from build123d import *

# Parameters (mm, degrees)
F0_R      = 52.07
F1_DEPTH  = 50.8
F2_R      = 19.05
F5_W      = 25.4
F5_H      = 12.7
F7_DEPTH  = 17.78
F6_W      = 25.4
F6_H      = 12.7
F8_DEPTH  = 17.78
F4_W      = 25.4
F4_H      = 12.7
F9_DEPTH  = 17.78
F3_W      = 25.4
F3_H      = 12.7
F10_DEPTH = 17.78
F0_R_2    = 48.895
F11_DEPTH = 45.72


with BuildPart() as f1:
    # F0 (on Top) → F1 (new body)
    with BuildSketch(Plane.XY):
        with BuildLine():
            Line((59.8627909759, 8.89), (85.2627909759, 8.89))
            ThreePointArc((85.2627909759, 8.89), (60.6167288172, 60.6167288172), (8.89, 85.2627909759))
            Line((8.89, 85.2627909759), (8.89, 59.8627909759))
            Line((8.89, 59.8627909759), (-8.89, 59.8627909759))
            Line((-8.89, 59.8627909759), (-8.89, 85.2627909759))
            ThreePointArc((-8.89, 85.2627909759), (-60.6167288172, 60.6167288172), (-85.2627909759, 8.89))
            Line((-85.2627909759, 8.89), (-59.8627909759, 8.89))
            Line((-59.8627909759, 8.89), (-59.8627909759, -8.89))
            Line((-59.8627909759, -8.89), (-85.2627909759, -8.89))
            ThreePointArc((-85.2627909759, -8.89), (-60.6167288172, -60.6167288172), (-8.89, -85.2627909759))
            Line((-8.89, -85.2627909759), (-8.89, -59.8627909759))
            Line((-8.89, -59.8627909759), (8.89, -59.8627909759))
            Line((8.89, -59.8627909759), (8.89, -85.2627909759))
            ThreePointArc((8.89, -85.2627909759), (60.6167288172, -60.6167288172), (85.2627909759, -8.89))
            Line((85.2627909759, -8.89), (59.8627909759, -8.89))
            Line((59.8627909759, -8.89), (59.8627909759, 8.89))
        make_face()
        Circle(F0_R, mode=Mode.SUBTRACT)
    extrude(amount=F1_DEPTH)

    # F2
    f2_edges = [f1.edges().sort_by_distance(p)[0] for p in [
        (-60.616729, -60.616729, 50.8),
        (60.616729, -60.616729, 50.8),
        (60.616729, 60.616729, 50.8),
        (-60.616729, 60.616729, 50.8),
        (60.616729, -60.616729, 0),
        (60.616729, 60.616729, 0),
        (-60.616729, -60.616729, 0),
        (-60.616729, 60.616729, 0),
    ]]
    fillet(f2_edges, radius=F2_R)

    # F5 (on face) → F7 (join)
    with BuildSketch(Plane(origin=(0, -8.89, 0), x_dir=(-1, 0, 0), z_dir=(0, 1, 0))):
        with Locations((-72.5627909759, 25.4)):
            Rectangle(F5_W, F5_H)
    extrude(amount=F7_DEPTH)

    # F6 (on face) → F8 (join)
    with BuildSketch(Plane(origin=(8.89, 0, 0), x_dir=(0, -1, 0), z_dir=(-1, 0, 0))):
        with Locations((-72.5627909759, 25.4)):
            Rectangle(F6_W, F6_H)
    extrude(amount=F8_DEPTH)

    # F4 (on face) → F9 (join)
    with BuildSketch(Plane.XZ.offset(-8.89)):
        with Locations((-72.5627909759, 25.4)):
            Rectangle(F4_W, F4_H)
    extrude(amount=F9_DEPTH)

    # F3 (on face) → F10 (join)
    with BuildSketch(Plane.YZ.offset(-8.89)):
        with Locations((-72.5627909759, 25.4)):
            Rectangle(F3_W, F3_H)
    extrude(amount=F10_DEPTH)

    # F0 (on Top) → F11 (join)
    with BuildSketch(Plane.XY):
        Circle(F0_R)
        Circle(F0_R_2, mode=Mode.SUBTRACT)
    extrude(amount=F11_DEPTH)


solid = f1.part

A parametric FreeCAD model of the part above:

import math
import FreeCAD as App
import Part
import Sketcher
from FreeCAD import Vector
Q = App.Units.Quantity


def edges_at(feature, points):
    """Names of the edges that pass closest to the given points."""
    edges = feature.Shape.Edges
    near = lambda p: min(range(len(edges)), key=lambda i: edges[i].distToShape(Part.Vertex(*p))[0])
    return sorted({f"Edge{near(p) + 1}" for p in points})

doc = App.newDocument("Part")
body = doc.addObject("PartDesign::Body", "Body")

# Sketch on XY plane
sketch1 = body.newObject("Sketcher::SketchObject", "Sketch")
sketch1.AttachmentSupport = (doc.getObject("XY_Plane"), [""])
sketch1.MapMode = "FlatFace"
sketch1.addGeometry(Part.LineSegment(Vector(59.862791, 8.89, 0), Vector(85.262791, 8.89, 0)), False)
sketch1.addGeometry(Part.ArcOfCircle(Part.Circle(Vector(0, 0, 0), Vector(0, 0, 1), 85.725), math.radians(5.952487), math.radians(84.047513)), False)
sketch1.addGeometry(Part.LineSegment(Vector(8.89, 85.262791, 0), Vector(8.89, 59.862791, 0)), False)
sketch1.addGeometry(Part.LineSegment(Vector(8.89, 59.862791, 0), Vector(-8.89, 59.862791, 0)), False)
sketch1.addGeometry(Part.LineSegment(Vector(-8.89, 59.862791, 0), Vector(-8.89, 85.262791, 0)), False)
sketch1.addGeometry(Part.ArcOfCircle(Part.Circle(Vector(0, 0, 0), Vector(0, 0, 1), 85.725), math.radians(95.952487), math.radians(174.047513)), False)
sketch1.addGeometry(Part.LineSegment(Vector(-85.262791, 8.89, 0), Vector(-59.862791, 8.89, 0)), False)
sketch1.addGeometry(Part.LineSegment(Vector(-59.862791, 8.89, 0), Vector(-59.862791, -8.89, 0)), False)
sketch1.addGeometry(Part.LineSegment(Vector(-59.862791, -8.89, 0), Vector(-85.262791, -8.89, 0)), False)
sketch1.addGeometry(Part.ArcOfCircle(Part.Circle(Vector(0, 0, 0), Vector(0, 0, 1), 85.725), math.radians(-174.047513), math.radians(-95.952487)), False)
sketch1.addGeometry(Part.LineSegment(Vector(-8.89, -85.262791, 0), Vector(-8.89, -59.862791, 0)), False)
sketch1.addGeometry(Part.LineSegment(Vector(-8.89, -59.862791, 0), Vector(8.89, -59.862791, 0)), False)
sketch1.addGeometry(Part.LineSegment(Vector(8.89, -59.862791, 0), Vector(8.89, -85.262791, 0)), False)
sketch1.addGeometry(Part.ArcOfCircle(Part.Circle(Vector(0, 0, 0), Vector(0, 0, 1), 85.725), math.radians(-84.047513), math.radians(-5.952487)), False)
sketch1.addGeometry(Part.LineSegment(Vector(85.262791, -8.89, 0), Vector(59.862791, -8.89, 0)), False)
sketch1.addGeometry(Part.LineSegment(Vector(59.862791, -8.89, 0), Vector(59.862791, 8.89, 0)), False)
sketch1.addGeometry(Part.Circle(Vector(0, 0, 0), Vector(0, 0, 1), 52.07), False)
sketch1.addConstraint(Sketcher.Constraint("Coincident", 0, 2, 1, 1))
sketch1.addConstraint(Sketcher.Constraint("Coincident", 1, 2, 2, 1))
sketch1.addConstraint(Sketcher.Constraint("Coincident", 2, 2, 3, 1))
sketch1.addConstraint(Sketcher.Constraint("Coincident", 3, 2, 4, 1))
sketch1.addConstraint(Sketcher.Constraint("Coincident", 4, 2, 5, 1))
sketch1.addConstraint(Sketcher.Constraint("Coincident", 5, 2, 6, 1))
sketch1.addConstraint(Sketcher.Constraint("Coincident", 6, 2, 7, 1))
sketch1.addConstraint(Sketcher.Constraint("Coincident", 7, 2, 8, 1))
sketch1.addConstraint(Sketcher.Constraint("Coincident", 8, 2, 9, 1))
sketch1.addConstraint(Sketcher.Constraint("Coincident", 9, 2, 10, 1))
sketch1.addConstraint(Sketcher.Constraint("Coincident", 10, 2, 11, 1))
sketch1.addConstraint(Sketcher.Constraint("Coincident", 11, 2, 12, 1))
sketch1.addConstraint(Sketcher.Constraint("Coincident", 12, 2, 13, 1))
sketch1.addConstraint(Sketcher.Constraint("Coincident", 13, 2, 14, 1))
sketch1.addConstraint(Sketcher.Constraint("Coincident", 14, 2, 15, 1))
sketch1.addConstraint(Sketcher.Constraint("Coincident", 15, 2, 0, 1))
sketch1.addConstraint(Sketcher.Constraint("Horizontal", 0))
sketch1.addConstraint(Sketcher.Constraint("Vertical", 2))
sketch1.addConstraint(Sketcher.Constraint("Horizontal", 3))
sketch1.addConstraint(Sketcher.Constraint("Vertical", 4))
sketch1.addConstraint(Sketcher.Constraint("Horizontal", 6))
sketch1.addConstraint(Sketcher.Constraint("Vertical", 7))
sketch1.addConstraint(Sketcher.Constraint("Horizontal", 8))
sketch1.addConstraint(Sketcher.Constraint("Vertical", 10))
sketch1.addConstraint(Sketcher.Constraint("Horizontal", 11))
sketch1.addConstraint(Sketcher.Constraint("Vertical", 12))
sketch1.addConstraint(Sketcher.Constraint("Horizontal", 14))
sketch1.addConstraint(Sketcher.Constraint("Vertical", 15))
sketch1.addConstraint(Sketcher.Constraint("Coincident", 1, 3, -1, 1))
sketch1.addConstraint(Sketcher.Constraint("Coincident", 5, 3, -1, 1))
sketch1.addConstraint(Sketcher.Constraint("Coincident", 9, 3, -1, 1))
sketch1.addConstraint(Sketcher.Constraint("Coincident", 13, 3, -1, 1))
sketch1.addConstraint(Sketcher.Constraint("Coincident", 16, 3, -1, 1))
sketch1.addConstraint(Sketcher.Constraint("Equal", 1, 5))
sketch1.addConstraint(Sketcher.Constraint("Equal", 5, 9))
sketch1.addConstraint(Sketcher.Constraint("Equal", 9, 13))
sketch1.addConstraint(Sketcher.Constraint("Symmetric", 2, 2, 10, 2, -1, 1))
sketch1.addConstraint(Sketcher.Constraint("Symmetric", 6, 2, 14, 2, -1, 1))
sketch1.addConstraint(Sketcher.Constraint("Horizontal", 1, 2, 4, 2))
sketch1.addConstraint(Sketcher.Constraint("Horizontal", 0, 2, 5, 2))
sketch1.addConstraint(Sketcher.Constraint("Horizontal", 9, 2, 12, 2))
sketch1.addConstraint(Sketcher.Constraint("Horizontal", 8, 2, 13, 2))
sketch1.addConstraint(Sketcher.Constraint("Equal", 14, 2))
sketch1.addConstraint(Sketcher.Constraint("Equal", 11, 7))
sketch1.addConstraint(Sketcher.Constraint("Diameter", 16, Q("4.1 in")))
sketch1.addConstraint(Sketcher.Constraint("DistanceX", 0, 1, 0, 2, Q("1 in")))
sketch1.addConstraint(Sketcher.Constraint("DistanceX", 3, 2, 3, 1, Q("0.7 in")))
sketch1.addConstraint(Sketcher.Constraint("Radius", 1, Q("3.375 in")))
pad1 = body.newObject("PartDesign::Pad", "Pad")
pad1.Profile = sketch1
pad1.Length = Q("2 in")
doc.recompute()

fillet = body.newObject("PartDesign::Fillet", "Fillet")
fillet.Base = (pad1, edges_at(pad1, [
    (-60.617, -60.617, 50.8),
    (60.617, -60.617, 50.8),
    (60.617, 60.617, 50.8),
    (-60.617, 60.617, 50.8),
    (60.617, -60.617, 0),
    (60.617, 60.617, 0),
    (-60.617, -60.617, 0),
    (-60.617, 60.617, 0),
]))
fillet.Radius = Q("0.75 in")

# Sketch on XZ plane
sketch2 = body.newObject("Sketcher::SketchObject", "Sketch001")
sketch2.AttachmentSupport = (doc.getObject("XZ_Plane"), [""])
sketch2.MapMode = "FlatFace"
sketch2.AttachmentOffset = App.Placement(Vector(0, 0, 0.35 * 25.4), App.Rotation())
sketch2.addGeometry(Part.LineSegment(Vector(85.262791, 31.75, 0), Vector(85.262791, 19.05, 0)), False)
sketch2.addGeometry(Part.LineSegment(Vector(85.262791, 19.05, 0), Vector(59.862791, 19.05, 0)), False)
sketch2.addGeometry(Part.LineSegment(Vector(59.862791, 19.05, 0), Vector(59.862791, 31.75, 0)), False)
sketch2.addGeometry(Part.LineSegment(Vector(59.862791, 31.75, 0), Vector(85.262791, 31.75, 0)), False)
sketch2.addConstraint(Sketcher.Constraint("Coincident", 0, 2, 1, 1))
sketch2.addConstraint(Sketcher.Constraint("Coincident", 1, 2, 2, 1))
sketch2.addConstraint(Sketcher.Constraint("Coincident", 2, 2, 3, 1))
sketch2.addConstraint(Sketcher.Constraint("Coincident", 3, 2, 0, 1))
sketch2.addConstraint(Sketcher.Constraint("Vertical", 0))
sketch2.addConstraint(Sketcher.Constraint("Horizontal", 1))
sketch2.addConstraint(Sketcher.Constraint("Vertical", 2))
sketch2.addConstraint(Sketcher.Constraint("Horizontal", 3))
sketch2.addConstraint(Sketcher.Constraint("DistanceX", 1, 2, 1, 1, Q("1 in")))
sketch2.addConstraint(Sketcher.Constraint("DistanceY", 0, 2, 0, 1, Q("0.5 in")))
sketch2.addConstraint(Sketcher.Constraint("DistanceY", -1, 1, 0, 2, Q("0.75 in")))
sketch2.addConstraint(Sketcher.Constraint("DistanceX", -1, 1, 0, 2, 85.262791))
pad2 = body.newObject("PartDesign::Pad", "Pad001")
pad2.Profile = sketch2
pad2.Length = Q("0.7 in")
pad2.Reversed = True

# Sketch on YZ plane
sketch3 = body.newObject("Sketcher::SketchObject", "Sketch002")
sketch3.AttachmentSupport = (doc.getObject("YZ_Plane"), [""])
sketch3.MapMode = "FlatFace"
sketch3.AttachmentOffset = App.Placement(Vector(0, 0, 0.35 * 25.4), App.Rotation())
sketch3.addGeometry(Part.LineSegment(Vector(85.262791, 31.75, 0), Vector(85.262791, 19.05, 0)), False)
sketch3.addGeometry(Part.LineSegment(Vector(85.262791, 19.05, 0), Vector(59.862791, 19.05, 0)), False)
sketch3.addGeometry(Part.LineSegment(Vector(59.862791, 19.05, 0), Vector(59.862791, 31.75, 0)), False)
sketch3.addGeometry(Part.LineSegment(Vector(59.862791, 31.75, 0), Vector(85.262791, 31.75, 0)), False)
sketch3.addConstraint(Sketcher.Constraint("Coincident", 0, 2, 1, 1))
sketch3.addConstraint(Sketcher.Constraint("Coincident", 1, 2, 2, 1))
sketch3.addConstraint(Sketcher.Constraint("Coincident", 2, 2, 3, 1))
sketch3.addConstraint(Sketcher.Constraint("Coincident", 3, 2, 0, 1))
sketch3.addConstraint(Sketcher.Constraint("Vertical", 0))
sketch3.addConstraint(Sketcher.Constraint("Horizontal", 1))
sketch3.addConstraint(Sketcher.Constraint("Vertical", 2))
sketch3.addConstraint(Sketcher.Constraint("Horizontal", 3))
sketch3.addConstraint(Sketcher.Constraint("DistanceX", 1, 2, 1, 1, Q("1 in")))
sketch3.addConstraint(Sketcher.Constraint("DistanceY", 0, 2, 0, 1, Q("0.5 in")))
sketch3.addConstraint(Sketcher.Constraint("DistanceY", -1, 1, 0, 2, Q("0.75 in")))
sketch3.addConstraint(Sketcher.Constraint("DistanceX", -1, 1, 0, 2, 85.262791))
pad3 = body.newObject("PartDesign::Pad", "Pad002")
pad3.Profile = sketch3
pad3.Length = Q("0.7 in")
pad3.Reversed = True

# Sketch on XZ plane
sketch4 = body.newObject("Sketcher::SketchObject", "Sketch003")
sketch4.AttachmentSupport = (doc.getObject("XZ_Plane"), [""])
sketch4.MapMode = "FlatFace"
sketch4.AttachmentOffset = App.Placement(Vector(0, 0, -0.35 * 25.4), App.Rotation())
sketch4.addGeometry(Part.LineSegment(Vector(-85.262791, 31.75, 0), Vector(-85.262791, 19.05, 0)), False)
sketch4.addGeometry(Part.LineSegment(Vector(-85.262791, 19.05, 0), Vector(-59.862791, 19.05, 0)), False)
sketch4.addGeometry(Part.LineSegment(Vector(-59.862791, 19.05, 0), Vector(-59.862791, 31.75, 0)), False)
sketch4.addGeometry(Part.LineSegment(Vector(-59.862791, 31.75, 0), Vector(-85.262791, 31.75, 0)), False)
sketch4.addConstraint(Sketcher.Constraint("Coincident", 0, 2, 1, 1))
sketch4.addConstraint(Sketcher.Constraint("Coincident", 1, 2, 2, 1))
sketch4.addConstraint(Sketcher.Constraint("Coincident", 2, 2, 3, 1))
sketch4.addConstraint(Sketcher.Constraint("Coincident", 3, 2, 0, 1))
sketch4.addConstraint(Sketcher.Constraint("Vertical", 0))
sketch4.addConstraint(Sketcher.Constraint("Horizontal", 1))
sketch4.addConstraint(Sketcher.Constraint("Vertical", 2))
sketch4.addConstraint(Sketcher.Constraint("Horizontal", 3))
sketch4.addConstraint(Sketcher.Constraint("DistanceX", 1, 1, 1, 2, Q("1 in")))
sketch4.addConstraint(Sketcher.Constraint("DistanceY", 0, 2, 0, 1, Q("0.5 in")))
sketch4.addConstraint(Sketcher.Constraint("DistanceY", -1, 1, 0, 2, Q("0.75 in")))
sketch4.addConstraint(Sketcher.Constraint("DistanceX", 0, 2, -1, 1, 85.262791))
pad4 = body.newObject("PartDesign::Pad", "Pad003")
pad4.Profile = sketch4
pad4.Length = Q("0.7 in")

# Sketch on YZ plane
sketch5 = body.newObject("Sketcher::SketchObject", "Sketch004")
sketch5.AttachmentSupport = (doc.getObject("YZ_Plane"), [""])
sketch5.MapMode = "FlatFace"
sketch5.AttachmentOffset = App.Placement(Vector(0, 0, -0.35 * 25.4), App.Rotation())
sketch5.addGeometry(Part.LineSegment(Vector(-85.262791, 31.75, 0), Vector(-85.262791, 19.05, 0)), False)
sketch5.addGeometry(Part.LineSegment(Vector(-85.262791, 19.05, 0), Vector(-59.862791, 19.05, 0)), False)
sketch5.addGeometry(Part.LineSegment(Vector(-59.862791, 19.05, 0), Vector(-59.862791, 31.75, 0)), False)
sketch5.addGeometry(Part.LineSegment(Vector(-59.862791, 31.75, 0), Vector(-85.262791, 31.75, 0)), False)
sketch5.addConstraint(Sketcher.Constraint("Coincident", 0, 2, 1, 1))
sketch5.addConstraint(Sketcher.Constraint("Coincident", 1, 2, 2, 1))
sketch5.addConstraint(Sketcher.Constraint("Coincident", 2, 2, 3, 1))
sketch5.addConstraint(Sketcher.Constraint("Coincident", 3, 2, 0, 1))
sketch5.addConstraint(Sketcher.Constraint("Vertical", 0))
sketch5.addConstraint(Sketcher.Constraint("Horizontal", 1))
sketch5.addConstraint(Sketcher.Constraint("Vertical", 2))
sketch5.addConstraint(Sketcher.Constraint("Horizontal", 3))
sketch5.addConstraint(Sketcher.Constraint("DistanceX", 1, 1, 1, 2, Q("1 in")))
sketch5.addConstraint(Sketcher.Constraint("DistanceY", 0, 2, 0, 1, Q("0.5 in")))
sketch5.addConstraint(Sketcher.Constraint("DistanceY", -1, 1, 0, 2, Q("0.75 in")))
sketch5.addConstraint(Sketcher.Constraint("DistanceX", 0, 2, -1, 1, 85.262791))
pad5 = body.newObject("PartDesign::Pad", "Pad004")
pad5.Profile = sketch5
pad5.Length = Q("0.7 in")

# Sketch on XY plane
sketch6 = body.newObject("Sketcher::SketchObject", "Sketch005")
sketch6.AttachmentSupport = (doc.getObject("XY_Plane"), [""])
sketch6.MapMode = "FlatFace"
sketch6.addGeometry(Part.Circle(Vector(0, 0, 0), Vector(0, 0, 1), 52.07), False)
sketch6.addGeometry(Part.Circle(Vector(0, 0, 0), Vector(0, 0, 1), 48.895), False)
sketch6.addConstraint(Sketcher.Constraint("Coincident", 0, 3, -1, 1))
sketch6.addConstraint(Sketcher.Constraint("Coincident", 1, 3, -1, 1))
sketch6.addConstraint(Sketcher.Constraint("Diameter", 0, Q("4.1 in")))
sketch6.addConstraint(Sketcher.Constraint("Diameter", 1, Q("3.85 in")))
pad6 = body.newObject("PartDesign::Pad", "Pad005")
pad6.Profile = sketch6
pad6.Length = Q("1.8 in")

doc.recompute()
